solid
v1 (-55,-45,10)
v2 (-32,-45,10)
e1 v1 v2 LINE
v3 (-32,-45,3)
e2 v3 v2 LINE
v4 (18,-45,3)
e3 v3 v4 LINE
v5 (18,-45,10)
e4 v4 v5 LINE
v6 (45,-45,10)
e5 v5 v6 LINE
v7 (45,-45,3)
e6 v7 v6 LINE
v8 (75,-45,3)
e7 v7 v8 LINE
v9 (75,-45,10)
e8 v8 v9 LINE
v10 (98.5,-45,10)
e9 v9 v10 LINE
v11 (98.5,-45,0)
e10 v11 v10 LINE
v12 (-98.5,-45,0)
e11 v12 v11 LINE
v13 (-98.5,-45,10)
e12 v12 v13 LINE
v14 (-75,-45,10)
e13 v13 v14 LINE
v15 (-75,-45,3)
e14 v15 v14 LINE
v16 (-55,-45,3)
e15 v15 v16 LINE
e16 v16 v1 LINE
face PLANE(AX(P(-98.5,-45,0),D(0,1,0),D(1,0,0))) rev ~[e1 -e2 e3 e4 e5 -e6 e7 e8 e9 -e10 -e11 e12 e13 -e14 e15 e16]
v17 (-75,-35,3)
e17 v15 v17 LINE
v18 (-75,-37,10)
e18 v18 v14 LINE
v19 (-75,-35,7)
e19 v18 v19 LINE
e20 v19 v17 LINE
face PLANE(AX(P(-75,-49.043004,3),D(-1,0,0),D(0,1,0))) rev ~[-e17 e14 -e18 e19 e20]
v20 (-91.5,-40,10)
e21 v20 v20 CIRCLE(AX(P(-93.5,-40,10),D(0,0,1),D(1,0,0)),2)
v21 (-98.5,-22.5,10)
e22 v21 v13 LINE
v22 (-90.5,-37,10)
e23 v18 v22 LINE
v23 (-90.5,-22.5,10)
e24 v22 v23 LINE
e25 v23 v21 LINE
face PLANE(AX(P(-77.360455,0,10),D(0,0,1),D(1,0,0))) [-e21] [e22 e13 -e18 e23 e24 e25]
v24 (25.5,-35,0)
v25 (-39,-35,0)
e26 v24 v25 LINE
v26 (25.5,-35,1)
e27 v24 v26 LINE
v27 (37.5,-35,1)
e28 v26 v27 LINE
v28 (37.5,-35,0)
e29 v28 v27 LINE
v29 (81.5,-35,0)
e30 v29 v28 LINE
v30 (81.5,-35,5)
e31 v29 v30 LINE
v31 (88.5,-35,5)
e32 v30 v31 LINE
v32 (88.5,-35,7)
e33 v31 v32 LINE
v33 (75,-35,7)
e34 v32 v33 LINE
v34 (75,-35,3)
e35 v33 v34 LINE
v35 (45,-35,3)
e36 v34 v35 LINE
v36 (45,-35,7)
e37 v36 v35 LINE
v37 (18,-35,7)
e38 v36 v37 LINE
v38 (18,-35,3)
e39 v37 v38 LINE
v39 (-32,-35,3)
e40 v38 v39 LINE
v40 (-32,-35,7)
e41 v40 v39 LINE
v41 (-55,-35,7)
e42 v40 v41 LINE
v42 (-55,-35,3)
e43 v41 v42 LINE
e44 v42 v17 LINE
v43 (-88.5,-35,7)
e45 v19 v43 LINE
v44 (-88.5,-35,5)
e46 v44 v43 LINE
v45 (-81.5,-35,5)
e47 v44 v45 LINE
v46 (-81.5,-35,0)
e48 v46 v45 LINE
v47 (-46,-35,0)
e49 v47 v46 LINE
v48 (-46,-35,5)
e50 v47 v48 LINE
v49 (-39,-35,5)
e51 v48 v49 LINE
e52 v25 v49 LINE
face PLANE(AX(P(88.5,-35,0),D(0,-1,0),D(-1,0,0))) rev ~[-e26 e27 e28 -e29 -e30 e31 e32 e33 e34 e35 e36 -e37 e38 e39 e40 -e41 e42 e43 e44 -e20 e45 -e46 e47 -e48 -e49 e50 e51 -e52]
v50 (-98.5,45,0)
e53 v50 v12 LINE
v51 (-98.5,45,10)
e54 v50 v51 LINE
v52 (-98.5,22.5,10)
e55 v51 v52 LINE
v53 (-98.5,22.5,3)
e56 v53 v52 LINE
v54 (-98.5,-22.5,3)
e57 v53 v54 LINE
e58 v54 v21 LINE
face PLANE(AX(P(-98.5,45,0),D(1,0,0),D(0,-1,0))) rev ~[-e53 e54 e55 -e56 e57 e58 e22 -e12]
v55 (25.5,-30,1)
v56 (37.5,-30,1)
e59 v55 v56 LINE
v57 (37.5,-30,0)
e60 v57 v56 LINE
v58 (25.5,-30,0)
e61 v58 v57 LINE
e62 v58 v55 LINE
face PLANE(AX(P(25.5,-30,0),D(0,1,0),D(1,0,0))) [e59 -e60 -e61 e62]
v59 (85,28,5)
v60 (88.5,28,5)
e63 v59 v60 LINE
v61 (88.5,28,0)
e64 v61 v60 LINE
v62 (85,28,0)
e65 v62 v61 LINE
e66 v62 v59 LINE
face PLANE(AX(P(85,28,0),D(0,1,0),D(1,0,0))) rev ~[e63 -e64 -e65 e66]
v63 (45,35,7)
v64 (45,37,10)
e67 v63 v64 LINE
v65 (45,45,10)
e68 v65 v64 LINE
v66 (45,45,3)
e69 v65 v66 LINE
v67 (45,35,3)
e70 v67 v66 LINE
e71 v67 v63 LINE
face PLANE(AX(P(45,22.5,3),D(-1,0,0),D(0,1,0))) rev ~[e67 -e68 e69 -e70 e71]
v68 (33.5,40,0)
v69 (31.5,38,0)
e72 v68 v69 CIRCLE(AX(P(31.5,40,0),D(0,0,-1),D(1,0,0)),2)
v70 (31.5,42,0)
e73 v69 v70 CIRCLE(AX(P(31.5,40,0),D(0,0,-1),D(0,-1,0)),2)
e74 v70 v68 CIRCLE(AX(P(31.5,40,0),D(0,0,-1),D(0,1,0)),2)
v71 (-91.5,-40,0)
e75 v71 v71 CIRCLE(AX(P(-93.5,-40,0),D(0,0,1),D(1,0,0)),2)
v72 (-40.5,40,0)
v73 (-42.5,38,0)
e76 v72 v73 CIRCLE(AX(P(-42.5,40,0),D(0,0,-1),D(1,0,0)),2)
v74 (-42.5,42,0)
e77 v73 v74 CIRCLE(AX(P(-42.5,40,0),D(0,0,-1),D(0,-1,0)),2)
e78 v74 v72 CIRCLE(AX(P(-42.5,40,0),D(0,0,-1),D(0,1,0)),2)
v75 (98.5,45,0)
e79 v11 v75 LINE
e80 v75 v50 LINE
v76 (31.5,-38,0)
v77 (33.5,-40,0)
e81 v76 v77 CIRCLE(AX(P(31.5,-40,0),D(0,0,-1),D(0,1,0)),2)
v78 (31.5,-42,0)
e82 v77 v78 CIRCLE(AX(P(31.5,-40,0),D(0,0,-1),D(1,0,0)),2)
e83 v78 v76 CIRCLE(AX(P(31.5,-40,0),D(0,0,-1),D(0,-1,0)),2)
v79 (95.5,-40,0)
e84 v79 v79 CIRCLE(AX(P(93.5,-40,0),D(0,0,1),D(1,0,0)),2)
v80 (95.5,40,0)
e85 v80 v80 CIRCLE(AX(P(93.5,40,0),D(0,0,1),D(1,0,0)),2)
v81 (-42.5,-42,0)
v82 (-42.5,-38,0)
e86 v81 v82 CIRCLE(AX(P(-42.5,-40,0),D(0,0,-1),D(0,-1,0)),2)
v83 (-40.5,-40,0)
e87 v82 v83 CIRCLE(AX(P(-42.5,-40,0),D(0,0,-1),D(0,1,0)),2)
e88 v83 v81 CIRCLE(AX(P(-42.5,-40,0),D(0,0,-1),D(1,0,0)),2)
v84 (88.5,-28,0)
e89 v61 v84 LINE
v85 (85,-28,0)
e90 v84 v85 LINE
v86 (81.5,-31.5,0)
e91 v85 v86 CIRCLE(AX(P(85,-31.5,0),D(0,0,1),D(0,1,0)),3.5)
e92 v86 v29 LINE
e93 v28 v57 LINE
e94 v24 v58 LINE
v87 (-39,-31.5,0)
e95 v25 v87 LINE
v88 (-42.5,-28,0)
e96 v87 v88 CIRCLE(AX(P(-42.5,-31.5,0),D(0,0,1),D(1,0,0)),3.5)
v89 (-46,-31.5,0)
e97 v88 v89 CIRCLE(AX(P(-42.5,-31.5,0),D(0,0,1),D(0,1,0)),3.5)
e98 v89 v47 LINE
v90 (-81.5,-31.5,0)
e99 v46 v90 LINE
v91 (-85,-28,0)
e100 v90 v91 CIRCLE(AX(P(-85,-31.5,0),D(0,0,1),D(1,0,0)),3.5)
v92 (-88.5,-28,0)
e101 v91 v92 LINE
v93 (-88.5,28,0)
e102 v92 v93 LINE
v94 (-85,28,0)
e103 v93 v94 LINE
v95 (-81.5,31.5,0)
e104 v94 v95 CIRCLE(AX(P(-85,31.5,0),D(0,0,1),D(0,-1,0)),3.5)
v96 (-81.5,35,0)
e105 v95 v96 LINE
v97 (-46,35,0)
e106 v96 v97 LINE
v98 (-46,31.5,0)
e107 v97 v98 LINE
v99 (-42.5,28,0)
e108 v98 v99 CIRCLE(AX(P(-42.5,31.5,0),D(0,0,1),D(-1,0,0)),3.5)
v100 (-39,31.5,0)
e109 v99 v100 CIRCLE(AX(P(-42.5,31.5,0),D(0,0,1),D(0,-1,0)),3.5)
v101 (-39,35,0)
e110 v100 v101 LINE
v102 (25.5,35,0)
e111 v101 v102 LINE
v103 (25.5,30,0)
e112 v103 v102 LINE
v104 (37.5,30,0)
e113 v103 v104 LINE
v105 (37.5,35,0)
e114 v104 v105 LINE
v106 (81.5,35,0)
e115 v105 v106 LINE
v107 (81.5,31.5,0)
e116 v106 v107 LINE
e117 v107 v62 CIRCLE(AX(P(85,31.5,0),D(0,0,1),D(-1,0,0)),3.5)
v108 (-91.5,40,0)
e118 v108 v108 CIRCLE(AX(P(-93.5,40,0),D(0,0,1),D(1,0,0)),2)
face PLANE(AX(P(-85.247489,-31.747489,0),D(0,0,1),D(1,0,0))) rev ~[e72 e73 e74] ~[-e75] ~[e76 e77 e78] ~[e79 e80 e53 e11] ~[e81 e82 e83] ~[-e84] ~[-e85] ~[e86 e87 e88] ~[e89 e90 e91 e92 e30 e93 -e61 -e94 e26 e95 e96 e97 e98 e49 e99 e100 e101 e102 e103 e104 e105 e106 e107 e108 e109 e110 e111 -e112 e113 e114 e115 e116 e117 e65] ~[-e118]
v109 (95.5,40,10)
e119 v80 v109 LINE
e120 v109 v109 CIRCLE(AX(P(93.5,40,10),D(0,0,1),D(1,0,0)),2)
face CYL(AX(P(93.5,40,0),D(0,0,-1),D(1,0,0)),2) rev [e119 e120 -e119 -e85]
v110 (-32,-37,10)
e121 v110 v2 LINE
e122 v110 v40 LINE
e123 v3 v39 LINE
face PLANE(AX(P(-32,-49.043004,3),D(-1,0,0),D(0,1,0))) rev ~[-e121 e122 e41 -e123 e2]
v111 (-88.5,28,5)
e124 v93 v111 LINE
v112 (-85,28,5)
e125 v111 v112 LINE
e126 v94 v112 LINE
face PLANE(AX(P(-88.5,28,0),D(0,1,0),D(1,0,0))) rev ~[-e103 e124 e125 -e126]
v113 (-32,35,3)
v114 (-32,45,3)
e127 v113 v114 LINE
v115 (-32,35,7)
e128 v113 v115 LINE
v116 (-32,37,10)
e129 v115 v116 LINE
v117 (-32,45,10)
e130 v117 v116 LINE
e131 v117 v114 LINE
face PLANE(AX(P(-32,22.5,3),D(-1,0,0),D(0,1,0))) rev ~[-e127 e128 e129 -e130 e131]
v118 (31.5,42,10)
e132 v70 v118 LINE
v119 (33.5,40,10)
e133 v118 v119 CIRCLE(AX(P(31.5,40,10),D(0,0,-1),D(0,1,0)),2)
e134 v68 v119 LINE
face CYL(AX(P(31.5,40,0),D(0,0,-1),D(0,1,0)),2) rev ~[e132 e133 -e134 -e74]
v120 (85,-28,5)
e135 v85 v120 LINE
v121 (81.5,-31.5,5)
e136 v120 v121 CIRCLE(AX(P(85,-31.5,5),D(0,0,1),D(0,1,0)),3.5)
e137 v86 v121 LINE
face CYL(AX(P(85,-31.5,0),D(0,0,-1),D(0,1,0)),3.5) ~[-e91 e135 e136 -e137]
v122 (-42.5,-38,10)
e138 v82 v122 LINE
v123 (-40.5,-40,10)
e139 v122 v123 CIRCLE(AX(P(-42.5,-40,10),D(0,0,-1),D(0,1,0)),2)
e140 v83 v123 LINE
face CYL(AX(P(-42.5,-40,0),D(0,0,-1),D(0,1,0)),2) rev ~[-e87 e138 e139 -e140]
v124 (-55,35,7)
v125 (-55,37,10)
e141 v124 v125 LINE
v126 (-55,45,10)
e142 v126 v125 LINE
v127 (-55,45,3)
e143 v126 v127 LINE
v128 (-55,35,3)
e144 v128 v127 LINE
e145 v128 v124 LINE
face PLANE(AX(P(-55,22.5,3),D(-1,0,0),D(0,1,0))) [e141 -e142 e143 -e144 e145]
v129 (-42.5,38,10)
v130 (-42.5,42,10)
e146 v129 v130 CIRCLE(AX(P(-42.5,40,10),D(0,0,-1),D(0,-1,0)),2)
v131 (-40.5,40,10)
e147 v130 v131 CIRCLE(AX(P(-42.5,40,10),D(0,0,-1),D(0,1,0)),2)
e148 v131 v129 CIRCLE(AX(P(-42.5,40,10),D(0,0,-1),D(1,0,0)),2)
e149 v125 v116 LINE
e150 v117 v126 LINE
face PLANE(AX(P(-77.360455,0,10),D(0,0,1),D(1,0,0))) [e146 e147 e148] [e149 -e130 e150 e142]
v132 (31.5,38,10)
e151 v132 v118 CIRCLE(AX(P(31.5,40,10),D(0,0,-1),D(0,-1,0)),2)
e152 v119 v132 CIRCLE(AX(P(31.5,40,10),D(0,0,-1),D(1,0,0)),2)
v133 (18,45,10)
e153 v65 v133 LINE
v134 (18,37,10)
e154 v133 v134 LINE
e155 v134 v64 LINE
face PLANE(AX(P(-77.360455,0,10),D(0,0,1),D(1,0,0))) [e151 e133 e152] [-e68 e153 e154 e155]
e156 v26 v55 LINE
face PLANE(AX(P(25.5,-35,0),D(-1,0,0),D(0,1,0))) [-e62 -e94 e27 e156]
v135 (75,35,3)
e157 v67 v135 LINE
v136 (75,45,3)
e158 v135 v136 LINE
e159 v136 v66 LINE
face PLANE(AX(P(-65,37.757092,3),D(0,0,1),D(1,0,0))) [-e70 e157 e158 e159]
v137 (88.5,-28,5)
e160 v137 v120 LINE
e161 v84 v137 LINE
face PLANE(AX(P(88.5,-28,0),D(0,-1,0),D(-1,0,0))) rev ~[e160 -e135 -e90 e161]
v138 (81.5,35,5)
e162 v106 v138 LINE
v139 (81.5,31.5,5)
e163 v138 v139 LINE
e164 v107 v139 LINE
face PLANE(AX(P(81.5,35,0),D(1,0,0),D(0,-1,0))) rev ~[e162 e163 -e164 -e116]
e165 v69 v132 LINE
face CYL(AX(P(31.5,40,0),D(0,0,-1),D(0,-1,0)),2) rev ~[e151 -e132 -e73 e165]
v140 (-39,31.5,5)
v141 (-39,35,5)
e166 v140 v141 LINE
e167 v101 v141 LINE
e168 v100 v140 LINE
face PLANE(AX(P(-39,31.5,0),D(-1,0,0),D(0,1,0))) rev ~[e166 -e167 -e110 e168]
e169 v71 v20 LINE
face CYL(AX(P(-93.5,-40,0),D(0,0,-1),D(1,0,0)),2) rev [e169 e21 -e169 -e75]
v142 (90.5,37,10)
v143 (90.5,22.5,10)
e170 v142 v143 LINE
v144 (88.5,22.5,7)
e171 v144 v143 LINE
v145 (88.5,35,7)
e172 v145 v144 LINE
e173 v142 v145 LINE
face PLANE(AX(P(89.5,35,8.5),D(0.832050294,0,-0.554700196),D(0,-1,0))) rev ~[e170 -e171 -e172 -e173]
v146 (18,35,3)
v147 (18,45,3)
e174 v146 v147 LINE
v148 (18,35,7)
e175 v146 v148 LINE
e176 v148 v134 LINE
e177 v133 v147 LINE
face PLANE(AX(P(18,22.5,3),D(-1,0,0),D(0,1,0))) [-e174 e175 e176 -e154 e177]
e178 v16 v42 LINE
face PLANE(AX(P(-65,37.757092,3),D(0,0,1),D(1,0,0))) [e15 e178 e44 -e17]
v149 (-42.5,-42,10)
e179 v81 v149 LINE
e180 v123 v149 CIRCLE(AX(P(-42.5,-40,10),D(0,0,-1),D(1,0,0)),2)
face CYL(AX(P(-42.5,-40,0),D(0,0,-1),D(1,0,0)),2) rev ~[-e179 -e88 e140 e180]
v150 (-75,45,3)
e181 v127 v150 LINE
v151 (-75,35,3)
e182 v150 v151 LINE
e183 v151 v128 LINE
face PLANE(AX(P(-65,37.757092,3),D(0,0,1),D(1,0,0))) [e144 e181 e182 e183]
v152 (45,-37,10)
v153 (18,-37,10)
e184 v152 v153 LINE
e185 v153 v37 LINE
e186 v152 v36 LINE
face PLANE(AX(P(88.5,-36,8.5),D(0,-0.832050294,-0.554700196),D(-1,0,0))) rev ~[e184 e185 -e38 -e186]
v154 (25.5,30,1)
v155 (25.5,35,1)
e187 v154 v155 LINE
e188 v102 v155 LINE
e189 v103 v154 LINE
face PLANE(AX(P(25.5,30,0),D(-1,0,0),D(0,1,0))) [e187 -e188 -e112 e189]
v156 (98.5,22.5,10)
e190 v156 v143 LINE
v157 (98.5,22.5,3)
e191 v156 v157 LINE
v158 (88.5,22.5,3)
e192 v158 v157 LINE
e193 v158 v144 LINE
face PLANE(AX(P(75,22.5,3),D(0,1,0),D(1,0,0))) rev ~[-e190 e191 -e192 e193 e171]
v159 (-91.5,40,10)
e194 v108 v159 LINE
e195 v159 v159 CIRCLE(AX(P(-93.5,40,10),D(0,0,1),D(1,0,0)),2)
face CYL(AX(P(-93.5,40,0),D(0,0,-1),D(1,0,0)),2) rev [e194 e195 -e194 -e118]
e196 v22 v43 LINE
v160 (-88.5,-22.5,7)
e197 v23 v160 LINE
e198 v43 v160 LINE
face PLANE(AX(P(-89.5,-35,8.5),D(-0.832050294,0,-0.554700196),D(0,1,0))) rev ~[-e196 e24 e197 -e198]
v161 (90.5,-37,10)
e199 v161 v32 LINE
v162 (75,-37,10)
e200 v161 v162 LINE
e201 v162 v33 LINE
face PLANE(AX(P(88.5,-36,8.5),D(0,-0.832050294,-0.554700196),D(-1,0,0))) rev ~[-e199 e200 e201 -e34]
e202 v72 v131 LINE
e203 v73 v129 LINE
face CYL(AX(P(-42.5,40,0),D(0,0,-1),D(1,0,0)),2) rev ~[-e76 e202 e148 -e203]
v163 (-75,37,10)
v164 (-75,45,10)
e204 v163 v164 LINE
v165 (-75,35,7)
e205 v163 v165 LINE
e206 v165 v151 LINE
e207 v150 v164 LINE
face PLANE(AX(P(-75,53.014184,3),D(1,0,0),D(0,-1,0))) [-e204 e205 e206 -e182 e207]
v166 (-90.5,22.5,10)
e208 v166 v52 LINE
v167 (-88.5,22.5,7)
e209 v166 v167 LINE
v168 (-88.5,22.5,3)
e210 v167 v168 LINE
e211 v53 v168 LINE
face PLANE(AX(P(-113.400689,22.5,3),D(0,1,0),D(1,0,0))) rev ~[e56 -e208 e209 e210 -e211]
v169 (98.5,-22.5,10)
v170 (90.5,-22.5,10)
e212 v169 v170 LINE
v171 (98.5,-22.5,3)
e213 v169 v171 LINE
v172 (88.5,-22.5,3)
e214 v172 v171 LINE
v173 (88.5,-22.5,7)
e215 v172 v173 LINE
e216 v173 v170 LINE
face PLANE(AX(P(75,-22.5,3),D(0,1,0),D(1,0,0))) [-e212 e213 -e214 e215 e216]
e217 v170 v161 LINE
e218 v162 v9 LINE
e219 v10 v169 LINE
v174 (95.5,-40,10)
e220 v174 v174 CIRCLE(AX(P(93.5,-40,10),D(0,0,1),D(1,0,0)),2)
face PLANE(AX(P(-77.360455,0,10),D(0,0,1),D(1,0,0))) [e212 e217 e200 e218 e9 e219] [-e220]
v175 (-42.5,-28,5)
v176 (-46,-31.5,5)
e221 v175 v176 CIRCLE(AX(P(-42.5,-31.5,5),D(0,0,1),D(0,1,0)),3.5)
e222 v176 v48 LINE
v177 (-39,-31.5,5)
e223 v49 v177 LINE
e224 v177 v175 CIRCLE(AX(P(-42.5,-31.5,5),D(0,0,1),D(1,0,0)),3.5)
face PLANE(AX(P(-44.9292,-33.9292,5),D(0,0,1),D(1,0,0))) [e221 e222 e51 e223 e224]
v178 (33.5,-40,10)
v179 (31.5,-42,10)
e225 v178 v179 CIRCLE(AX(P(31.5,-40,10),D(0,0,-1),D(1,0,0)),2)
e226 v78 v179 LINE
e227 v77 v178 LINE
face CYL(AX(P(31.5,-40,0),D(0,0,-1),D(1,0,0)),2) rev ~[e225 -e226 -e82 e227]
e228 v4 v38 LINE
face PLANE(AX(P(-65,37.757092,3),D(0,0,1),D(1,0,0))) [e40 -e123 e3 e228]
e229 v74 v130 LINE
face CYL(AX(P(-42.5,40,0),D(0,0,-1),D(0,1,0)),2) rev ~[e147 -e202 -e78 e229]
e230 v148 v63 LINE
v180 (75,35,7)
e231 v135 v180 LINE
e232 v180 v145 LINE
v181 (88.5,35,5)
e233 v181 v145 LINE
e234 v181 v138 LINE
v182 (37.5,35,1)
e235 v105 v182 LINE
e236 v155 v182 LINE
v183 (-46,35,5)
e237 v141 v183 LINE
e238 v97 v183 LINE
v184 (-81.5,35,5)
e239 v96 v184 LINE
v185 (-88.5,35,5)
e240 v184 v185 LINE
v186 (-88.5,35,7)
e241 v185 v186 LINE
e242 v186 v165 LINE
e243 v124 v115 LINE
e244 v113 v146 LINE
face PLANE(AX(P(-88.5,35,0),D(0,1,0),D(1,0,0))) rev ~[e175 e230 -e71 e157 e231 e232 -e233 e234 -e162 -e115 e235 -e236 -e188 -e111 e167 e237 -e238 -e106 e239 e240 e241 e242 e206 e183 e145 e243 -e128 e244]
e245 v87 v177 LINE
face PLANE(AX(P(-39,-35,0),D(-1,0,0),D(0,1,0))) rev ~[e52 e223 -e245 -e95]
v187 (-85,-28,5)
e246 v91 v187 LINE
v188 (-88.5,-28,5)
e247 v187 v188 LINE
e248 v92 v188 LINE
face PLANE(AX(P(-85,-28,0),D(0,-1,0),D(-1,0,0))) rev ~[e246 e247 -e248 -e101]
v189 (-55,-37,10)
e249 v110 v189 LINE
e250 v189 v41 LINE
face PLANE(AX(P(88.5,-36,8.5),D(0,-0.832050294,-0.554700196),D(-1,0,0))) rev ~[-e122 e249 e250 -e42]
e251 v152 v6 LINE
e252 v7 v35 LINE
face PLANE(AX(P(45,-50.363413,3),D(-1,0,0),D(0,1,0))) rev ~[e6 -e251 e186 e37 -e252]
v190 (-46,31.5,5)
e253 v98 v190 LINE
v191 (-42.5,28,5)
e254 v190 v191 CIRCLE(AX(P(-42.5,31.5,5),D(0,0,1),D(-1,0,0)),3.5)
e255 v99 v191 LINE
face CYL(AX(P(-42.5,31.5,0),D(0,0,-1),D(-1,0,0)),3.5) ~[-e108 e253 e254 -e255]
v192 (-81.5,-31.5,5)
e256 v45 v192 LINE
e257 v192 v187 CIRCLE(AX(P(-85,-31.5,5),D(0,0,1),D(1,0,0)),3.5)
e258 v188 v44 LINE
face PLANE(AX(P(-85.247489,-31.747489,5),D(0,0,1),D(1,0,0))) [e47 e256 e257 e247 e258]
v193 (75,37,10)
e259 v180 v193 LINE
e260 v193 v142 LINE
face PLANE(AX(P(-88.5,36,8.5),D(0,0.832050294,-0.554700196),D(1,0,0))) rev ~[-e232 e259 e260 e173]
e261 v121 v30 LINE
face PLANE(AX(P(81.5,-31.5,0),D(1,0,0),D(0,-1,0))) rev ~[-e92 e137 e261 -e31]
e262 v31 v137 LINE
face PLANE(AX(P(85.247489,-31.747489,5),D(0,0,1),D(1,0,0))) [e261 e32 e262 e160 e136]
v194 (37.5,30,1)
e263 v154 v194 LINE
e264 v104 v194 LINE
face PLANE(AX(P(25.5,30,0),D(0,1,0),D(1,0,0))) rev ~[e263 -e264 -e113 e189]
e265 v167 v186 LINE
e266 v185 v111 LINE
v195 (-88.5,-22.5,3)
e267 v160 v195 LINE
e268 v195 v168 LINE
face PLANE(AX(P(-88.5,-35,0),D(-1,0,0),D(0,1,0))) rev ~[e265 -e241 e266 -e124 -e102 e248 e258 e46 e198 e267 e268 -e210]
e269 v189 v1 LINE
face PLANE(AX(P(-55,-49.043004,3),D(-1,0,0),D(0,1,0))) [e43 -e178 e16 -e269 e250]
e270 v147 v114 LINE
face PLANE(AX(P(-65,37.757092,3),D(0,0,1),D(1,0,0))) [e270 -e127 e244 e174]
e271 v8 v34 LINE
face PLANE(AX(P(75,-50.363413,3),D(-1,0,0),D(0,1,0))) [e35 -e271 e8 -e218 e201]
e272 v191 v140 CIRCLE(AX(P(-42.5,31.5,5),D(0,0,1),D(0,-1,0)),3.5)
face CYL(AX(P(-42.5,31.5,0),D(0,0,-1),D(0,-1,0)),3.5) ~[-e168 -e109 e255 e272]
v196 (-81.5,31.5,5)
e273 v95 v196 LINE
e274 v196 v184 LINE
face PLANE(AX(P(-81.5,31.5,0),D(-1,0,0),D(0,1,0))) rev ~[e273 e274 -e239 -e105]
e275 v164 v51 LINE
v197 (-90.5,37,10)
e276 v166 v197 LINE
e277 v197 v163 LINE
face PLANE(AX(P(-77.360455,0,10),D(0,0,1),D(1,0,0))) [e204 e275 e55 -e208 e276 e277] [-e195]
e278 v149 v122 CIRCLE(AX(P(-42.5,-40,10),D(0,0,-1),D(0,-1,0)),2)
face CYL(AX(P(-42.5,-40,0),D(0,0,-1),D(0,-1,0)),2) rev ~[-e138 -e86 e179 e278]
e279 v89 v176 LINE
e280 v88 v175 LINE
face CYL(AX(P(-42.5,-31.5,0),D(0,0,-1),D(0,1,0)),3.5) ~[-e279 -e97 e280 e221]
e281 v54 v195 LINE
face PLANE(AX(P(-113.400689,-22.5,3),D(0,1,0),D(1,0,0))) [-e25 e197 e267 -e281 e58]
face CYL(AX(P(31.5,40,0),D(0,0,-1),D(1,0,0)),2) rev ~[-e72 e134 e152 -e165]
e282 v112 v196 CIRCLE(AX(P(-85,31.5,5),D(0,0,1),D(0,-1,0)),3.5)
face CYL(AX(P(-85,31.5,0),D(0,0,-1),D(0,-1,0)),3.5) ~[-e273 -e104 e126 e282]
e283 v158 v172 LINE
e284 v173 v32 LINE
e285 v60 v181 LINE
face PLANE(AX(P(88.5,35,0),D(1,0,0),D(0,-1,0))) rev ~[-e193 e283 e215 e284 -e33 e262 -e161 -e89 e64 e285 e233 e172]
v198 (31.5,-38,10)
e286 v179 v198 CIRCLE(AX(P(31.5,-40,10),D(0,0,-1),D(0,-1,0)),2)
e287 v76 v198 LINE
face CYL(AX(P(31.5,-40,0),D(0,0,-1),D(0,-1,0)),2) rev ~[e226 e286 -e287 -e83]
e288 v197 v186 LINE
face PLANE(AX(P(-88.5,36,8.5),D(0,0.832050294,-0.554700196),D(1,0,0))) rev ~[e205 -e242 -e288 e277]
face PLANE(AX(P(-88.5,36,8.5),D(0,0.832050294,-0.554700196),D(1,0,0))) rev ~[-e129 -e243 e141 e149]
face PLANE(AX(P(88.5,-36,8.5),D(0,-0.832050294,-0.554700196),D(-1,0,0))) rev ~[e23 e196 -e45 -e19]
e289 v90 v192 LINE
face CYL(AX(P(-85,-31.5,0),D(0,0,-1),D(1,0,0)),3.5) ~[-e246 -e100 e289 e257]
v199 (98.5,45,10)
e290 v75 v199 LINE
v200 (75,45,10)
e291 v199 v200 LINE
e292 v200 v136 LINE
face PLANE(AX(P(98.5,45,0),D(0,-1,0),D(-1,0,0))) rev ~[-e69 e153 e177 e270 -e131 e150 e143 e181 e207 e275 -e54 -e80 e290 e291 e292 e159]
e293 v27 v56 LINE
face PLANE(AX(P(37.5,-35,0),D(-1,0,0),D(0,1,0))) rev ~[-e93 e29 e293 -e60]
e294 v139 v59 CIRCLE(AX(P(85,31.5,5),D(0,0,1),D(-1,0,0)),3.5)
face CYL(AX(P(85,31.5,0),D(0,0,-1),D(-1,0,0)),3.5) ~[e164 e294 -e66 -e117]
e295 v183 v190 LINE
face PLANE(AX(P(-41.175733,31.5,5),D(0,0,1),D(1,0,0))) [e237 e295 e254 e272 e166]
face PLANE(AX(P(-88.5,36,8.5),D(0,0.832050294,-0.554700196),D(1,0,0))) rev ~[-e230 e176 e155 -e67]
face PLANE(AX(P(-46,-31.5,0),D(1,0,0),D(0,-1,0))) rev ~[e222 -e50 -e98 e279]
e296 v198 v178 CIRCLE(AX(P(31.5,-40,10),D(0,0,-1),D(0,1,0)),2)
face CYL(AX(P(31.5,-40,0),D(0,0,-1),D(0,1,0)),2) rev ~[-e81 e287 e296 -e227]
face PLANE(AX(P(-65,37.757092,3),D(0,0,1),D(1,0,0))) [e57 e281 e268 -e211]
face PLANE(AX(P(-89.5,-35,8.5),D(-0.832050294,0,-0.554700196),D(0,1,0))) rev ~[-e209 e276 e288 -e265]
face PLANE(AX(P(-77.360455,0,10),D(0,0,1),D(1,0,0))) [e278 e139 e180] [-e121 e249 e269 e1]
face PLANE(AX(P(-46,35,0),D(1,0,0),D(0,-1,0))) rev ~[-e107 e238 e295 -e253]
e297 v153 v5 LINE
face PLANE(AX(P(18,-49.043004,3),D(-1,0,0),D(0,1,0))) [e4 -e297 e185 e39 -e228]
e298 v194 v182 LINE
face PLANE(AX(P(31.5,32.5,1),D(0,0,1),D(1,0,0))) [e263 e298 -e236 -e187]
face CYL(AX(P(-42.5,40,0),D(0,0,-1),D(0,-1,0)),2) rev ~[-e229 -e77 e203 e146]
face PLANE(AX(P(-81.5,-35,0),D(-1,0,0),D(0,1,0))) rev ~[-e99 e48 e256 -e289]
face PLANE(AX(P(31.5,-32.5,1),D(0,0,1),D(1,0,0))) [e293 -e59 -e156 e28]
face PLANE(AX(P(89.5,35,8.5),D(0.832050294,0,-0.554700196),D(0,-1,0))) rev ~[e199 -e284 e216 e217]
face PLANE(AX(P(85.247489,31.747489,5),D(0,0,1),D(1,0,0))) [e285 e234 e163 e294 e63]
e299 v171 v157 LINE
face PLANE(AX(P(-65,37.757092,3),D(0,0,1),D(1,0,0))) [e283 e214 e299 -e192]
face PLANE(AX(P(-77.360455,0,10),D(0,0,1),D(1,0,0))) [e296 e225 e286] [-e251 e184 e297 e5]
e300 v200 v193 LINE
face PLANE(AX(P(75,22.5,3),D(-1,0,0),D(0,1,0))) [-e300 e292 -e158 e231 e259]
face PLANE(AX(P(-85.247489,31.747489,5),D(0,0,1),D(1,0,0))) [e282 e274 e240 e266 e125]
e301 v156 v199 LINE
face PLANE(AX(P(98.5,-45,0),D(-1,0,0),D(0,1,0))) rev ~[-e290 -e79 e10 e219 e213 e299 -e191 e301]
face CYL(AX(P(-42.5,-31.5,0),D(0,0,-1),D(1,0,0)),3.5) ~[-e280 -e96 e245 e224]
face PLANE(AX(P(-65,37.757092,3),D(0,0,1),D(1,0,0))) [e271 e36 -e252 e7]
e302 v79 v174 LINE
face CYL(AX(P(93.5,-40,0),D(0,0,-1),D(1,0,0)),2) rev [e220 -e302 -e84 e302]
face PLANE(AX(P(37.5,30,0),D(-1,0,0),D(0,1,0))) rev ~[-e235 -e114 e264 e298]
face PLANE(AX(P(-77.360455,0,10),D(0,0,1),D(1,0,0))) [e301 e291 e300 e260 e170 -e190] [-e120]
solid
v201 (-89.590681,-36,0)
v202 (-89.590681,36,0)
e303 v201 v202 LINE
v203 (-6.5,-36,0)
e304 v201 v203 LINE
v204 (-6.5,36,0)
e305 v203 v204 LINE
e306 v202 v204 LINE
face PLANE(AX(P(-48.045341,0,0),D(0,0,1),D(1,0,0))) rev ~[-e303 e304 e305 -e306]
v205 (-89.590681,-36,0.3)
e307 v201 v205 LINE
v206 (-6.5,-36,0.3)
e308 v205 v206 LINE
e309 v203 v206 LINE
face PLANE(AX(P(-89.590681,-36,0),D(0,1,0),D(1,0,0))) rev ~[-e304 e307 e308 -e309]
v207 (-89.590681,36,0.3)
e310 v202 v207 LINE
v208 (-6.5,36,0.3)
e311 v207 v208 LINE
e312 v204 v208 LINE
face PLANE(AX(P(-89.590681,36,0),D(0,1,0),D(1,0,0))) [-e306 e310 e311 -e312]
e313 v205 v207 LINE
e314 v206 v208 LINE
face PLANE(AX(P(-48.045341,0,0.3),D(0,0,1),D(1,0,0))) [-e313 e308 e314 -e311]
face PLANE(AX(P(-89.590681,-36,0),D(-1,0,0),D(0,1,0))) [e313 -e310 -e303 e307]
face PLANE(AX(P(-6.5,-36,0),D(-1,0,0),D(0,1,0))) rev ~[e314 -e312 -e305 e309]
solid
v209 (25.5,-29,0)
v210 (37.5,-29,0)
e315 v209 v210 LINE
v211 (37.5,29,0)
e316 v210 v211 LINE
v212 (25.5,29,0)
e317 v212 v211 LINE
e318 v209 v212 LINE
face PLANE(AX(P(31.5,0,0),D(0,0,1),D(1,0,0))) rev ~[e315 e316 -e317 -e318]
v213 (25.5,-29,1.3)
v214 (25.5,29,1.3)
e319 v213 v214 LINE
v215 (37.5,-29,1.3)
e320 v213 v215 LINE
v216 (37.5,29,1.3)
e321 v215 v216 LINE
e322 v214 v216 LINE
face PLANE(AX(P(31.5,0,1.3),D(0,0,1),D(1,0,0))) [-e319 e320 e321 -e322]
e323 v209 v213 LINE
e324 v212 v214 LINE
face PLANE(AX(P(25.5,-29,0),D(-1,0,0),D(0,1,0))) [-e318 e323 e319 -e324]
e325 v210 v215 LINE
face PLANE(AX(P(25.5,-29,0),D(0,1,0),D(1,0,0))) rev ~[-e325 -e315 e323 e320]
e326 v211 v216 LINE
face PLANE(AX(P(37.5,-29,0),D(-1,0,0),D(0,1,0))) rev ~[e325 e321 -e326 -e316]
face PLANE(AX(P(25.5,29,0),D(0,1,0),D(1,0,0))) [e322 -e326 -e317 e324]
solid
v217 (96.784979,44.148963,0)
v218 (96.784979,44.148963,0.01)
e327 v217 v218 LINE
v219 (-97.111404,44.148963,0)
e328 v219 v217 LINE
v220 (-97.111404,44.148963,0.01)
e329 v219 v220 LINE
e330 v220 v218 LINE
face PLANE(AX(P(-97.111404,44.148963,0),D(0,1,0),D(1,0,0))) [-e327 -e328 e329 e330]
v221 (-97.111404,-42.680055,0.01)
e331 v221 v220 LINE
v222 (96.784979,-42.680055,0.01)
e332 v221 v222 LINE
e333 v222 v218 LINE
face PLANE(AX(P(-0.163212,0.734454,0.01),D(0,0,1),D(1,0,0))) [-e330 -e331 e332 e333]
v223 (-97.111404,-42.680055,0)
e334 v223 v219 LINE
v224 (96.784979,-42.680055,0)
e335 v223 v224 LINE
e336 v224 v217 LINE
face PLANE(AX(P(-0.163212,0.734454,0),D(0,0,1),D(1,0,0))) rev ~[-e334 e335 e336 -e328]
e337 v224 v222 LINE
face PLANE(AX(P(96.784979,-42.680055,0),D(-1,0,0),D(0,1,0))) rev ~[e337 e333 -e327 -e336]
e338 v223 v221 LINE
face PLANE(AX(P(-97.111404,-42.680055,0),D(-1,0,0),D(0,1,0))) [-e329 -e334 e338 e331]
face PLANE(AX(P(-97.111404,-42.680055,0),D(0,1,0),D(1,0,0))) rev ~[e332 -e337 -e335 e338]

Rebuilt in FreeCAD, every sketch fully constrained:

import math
import FreeCAD as App
import Part
import Sketcher

V = App.Vector


def edges_at(feature, points):
    """Names of the edges that pass closest to the given points."""
    edges = feature.Shape.Edges
    near = lambda p: min(range(len(edges)), key=lambda i: edges[i].distToShape(Part.Vertex(*p))[0])
    return sorted({f"Edge{near(p) + 1}" for p in points})


def add_polygon(sketch, points):
    """Adds a closed chain of lines whose ends are joined by coincident constraints."""
    first, n = sketch.GeometryCount, len(points)
    for a, b in zip(points, points[1:] + points[:1]):
        sketch.addGeometry(Part.LineSegment(App.Vector(*a, 0), App.Vector(*b, 0)), False)
    for i in range(n):
        sketch.addConstraint(Sketcher.Constraint("Coincident", first + i, 2, first + (i + 1) % n, 1))

doc = App.newDocument("Part")
params = doc.addObject("Spreadsheet::Sheet", "Params")
for row, (alias, value) in enumerate([
    ("sketch1_diameter", "4 mm"),
    ("sketch1_width", "197 mm"),
    ("sketch1_width2", "177 mm"),
    ("sketch1_height", "90 mm"),
    ("sketch1_height2", "70 mm"),
    ("pad1_length", "10 mm"),
    ("sketch2_radius", "3.5 mm"),
    ("pad2_length", "5 mm"),
    ("chamfer_size", "2 mm"),
    ("chamfer_size2", "3 mm"),
    ("sketch3_width", "20 mm"),
    ("sketch3_width2", "23 mm"),
    ("sketch3_width3", "50 mm"),
    ("sketch3_width4", "27 mm"),
    ("sketch3_width5", "30 mm"),
    ("pocket1_length", "22 mm"),
    ("sketch4_width", "12 mm"),
    ("sketch4_height", "5 mm"),
    ("pad3_length", "1 mm"),
    ("sketch5_width", "12 mm"),
    ("sketch5_height", "58 mm"),
    ("pad4_length", "1.3 mm"),
    ("sketch6_height", "72 mm"),
    ("pad5_length", "0.3 mm"),
    ("pad6_length", "0.01 mm"),
], start=1):
    params.set(f"A{row}", alias)
    params.set(f"B{row}", "=" + value)
    params.setAlias(f"B{row}", alias)

body = doc.addObject("PartDesign::Body", "Body")

# Sketch on XY plane
sketch1 = body.newObject("Sketcher::SketchObject", "Sketch")
sketch1.AttachmentSupport = (doc.getObject("XY_Plane"), [""])
sketch1.MapMode = "FlatFace"
add_polygon(sketch1, [(98.5, -45), (98.5, 45), (-98.5, 45), (-98.5, -45)])  # lines 0-3
add_polygon(sketch1, [(-88.5, -35), (-88.5, 35), (88.5, 35), (88.5, -35)])  # lines 4-7
sketch1.addGeometry(Part.ArcOfCircle(Part.Circle(V(31.5, -40, 0), V(0, 0, 1), 2), math.radians(0), math.radians(90)), False)  # 8
sketch1.addGeometry(Part.ArcOfCircle(Part.Circle(V(31.5, -40, 0), V(0, 0, 1), 2), math.radians(-90), math.radians(0)), False)  # 9
sketch1.addGeometry(Part.ArcOfCircle(Part.Circle(V(31.5, -40, 0), V(0, 0, 1), 2), math.radians(90), math.radians(270)), False)  # 10
sketch1.addGeometry(Part.ArcOfCircle(Part.Circle(V(-42.5, -40, 0), V(0, 0, 1), 2), math.radians(90), math.radians(270)), False)  # 11
sketch1.addGeometry(Part.ArcOfCircle(Part.Circle(V(-42.5, -40, 0), V(0, 0, 1), 2), math.radians(0), math.radians(90)), False)  # 12
sketch1.addGeometry(Part.ArcOfCircle(Part.Circle(V(-42.5, -40, 0), V(0, 0, 1), 2), math.radians(-90), math.radians(0)), False)  # 13
sketch1.addGeometry(Part.ArcOfCircle(Part.Circle(V(-42.5, 40, 0), V(0, 0, 1), 2), math.radians(90), math.radians(270)), False)  # 14
sketch1.addGeometry(Part.ArcOfCircle(Part.Circle(V(-42.5, 40, 0), V(0, 0, 1), 2), math.radians(0), math.radians(90)), False)  # 15
sketch1.addGeometry(Part.ArcOfCircle(Part.Circle(V(-42.5, 40, 0), V(0, 0, 1), 2), math.radians(-90), math.radians(0)), False)  # 16
sketch1.addGeometry(Part.Circle(V(-93.5, -40, 0), V(0, 0, 1), 2), False)  # 17
sketch1.addGeometry(Part.Circle(V(-93.5, 40, 0), V(0, 0, 1), 2), False)  # 18
sketch1.addGeometry(Part.ArcOfCircle(Part.Circle(V(31.5, 40, 0), V(0, 0, 1), 2), math.radians(90), math.radians(270)), False)  # 19
sketch1.addGeometry(Part.ArcOfCircle(Part.Circle(V(31.5, 40, 0), V(0, 0, 1), 2), math.radians(0), math.radians(90)), False)  # 20
sketch1.addGeometry(Part.ArcOfCircle(Part.Circle(V(31.5, 40, 0), V(0, 0, 1), 2), math.radians(-90), math.radians(0)), False)  # 21
sketch1.addGeometry(Part.Circle(V(93.5, 40, 0), V(0, 0, 1), 2), False)  # 22
sketch1.addGeometry(Part.Circle(V(93.5, -40, 0), V(0, 0, 1), 2), False)  # 23
sketch1.addConstraint(Sketcher.Constraint("Tangent", 8, 1, 9, 2))
sketch1.addConstraint(Sketcher.Constraint("Tangent", 9, 1, 10, 2))
sketch1.addConstraint(Sketcher.Constraint("Tangent", 10, 1, 8, 2))
sketch1.addConstraint(Sketcher.Constraint("Tangent", 11, 1, 12, 2))
sketch1.addConstraint(Sketcher.Constraint("Tangent", 12, 1, 13, 2))
sketch1.addConstraint(Sketcher.Constraint("Tangent", 13, 1, 11, 2))
sketch1.addConstraint(Sketcher.Constraint("Tangent", 14, 1, 15, 2))
sketch1.addConstraint(Sketcher.Constraint("Tangent", 15, 1, 16, 2))
sketch1.addConstraint(Sketcher.Constraint("Tangent", 16, 1, 14, 2))
sketch1.addConstraint(Sketcher.Constraint("Tangent", 19, 1, 20, 2))
sketch1.addConstraint(Sketcher.Constraint("Tangent", 20, 1, 21, 2))
sketch1.addConstraint(Sketcher.Constraint("Tangent", 21, 1, 19, 2))
sketch1.addConstraint(Sketcher.Constraint("Vertical", 0))
sketch1.addConstraint(Sketcher.Constraint("Horizontal", 1))
sketch1.addConstraint(Sketcher.Constraint("Vertical", 2))
sketch1.addConstraint(Sketcher.Constraint("Horizontal", 3))
sketch1.addConstraint(Sketcher.Constraint("Vertical", 4))
sketch1.addConstraint(Sketcher.Constraint("Horizontal", 5))
sketch1.addConstraint(Sketcher.Constraint("Vertical", 6))
sketch1.addConstraint(Sketcher.Constraint("Horizontal", 7))
sketch1.addConstraint(Sketcher.Constraint("Equal", 10, 11))
sketch1.addConstraint(Sketcher.Constraint("Equal", 13, 14))
sketch1.addConstraint(Sketcher.Constraint("Equal", 16, 17))
sketch1.addConstraint(Sketcher.Constraint("Equal", 17, 18))
sketch1.addConstraint(Sketcher.Constraint("Equal", 18, 19))
sketch1.addConstraint(Sketcher.Constraint("Equal", 21, 22))
sketch1.addConstraint(Sketcher.Constraint("Equal", 22, 23))
sketch1.addConstraint(Sketcher.Constraint("Symmetric", 17, 3, 22, 3, -1, 1))
sketch1.addConstraint(Sketcher.Constraint("Symmetric", 18, 3, 23, 3, -1, 1))
sketch1.addConstraint(Sketcher.Constraint("Symmetric", 0, 2, 2, 2, -1, 1))
sketch1.addConstraint(Sketcher.Constraint("Symmetric", 4, 2, 6, 2, -1, 1))
sketch1.addConstraint(Sketcher.Constraint("Symmetric", 18, 3, 22, 3, -2))
sketch1.addConstraint(Sketcher.Constraint("Symmetric", 11, 3, 14, 3, -1))
sketch1.addConstraint(Sketcher.Constraint("Symmetric", 8, 3, 19, 3, -1))
sketch1.addConstraint(Sketcher.Constraint("Horizontal", 10, 3, 11, 3))
sketch1.addConstraint(Sketcher.Constraint("Horizontal", 13, 3, 17, 3))
sketch1.addConstraint(Sketcher.Constraint("Horizontal", 23, 3, 8, 1))
sketch1.addConstraint(Sketcher.Constraint("Horizontal", 8, 1, 12, 1))
sketch1.addConstraint(Sketcher.Constraint("Horizontal", 22, 3, 15, 1))
sketch1.addConstraint(Sketcher.Constraint("Horizontal", 15, 1, 20, 1))
sketch1.addConstraint(Sketcher.Constraint("Vertical", 21, 3, 9, 1))
sketch1.addConstraint(Sketcher.Constraint("Vertical", 9, 1, 10, 1))
sketch1.addConstraint(Sketcher.Constraint("Vertical", 16, 3, 11, 1))
sketch1.addConstraint(Sketcher.Constraint("Vertical", 11, 1, 13, 1))
sketch1.addConstraint(Sketcher.Constraint("Vertical", 13, 1, 14, 1))
sketch1.addConstraint(Sketcher.Constraint("Vertical", 14, 1, 16, 1))
sketch1.addConstraint(Sketcher.Constraint("Vertical", 10, 1, 19, 1))
sketch1.addConstraint(Sketcher.Constraint("Vertical", 19, 1, 21, 1))
sketch1.addConstraint(Sketcher.Constraint("Diameter", 17, 4.0))
sketch1.addConstraint(Sketcher.Constraint("DistanceX", 1, 2, 1, 1, 197.0))
sketch1.addConstraint(Sketcher.Constraint("DistanceX", 5, 1, 5, 2, 177.0))
sketch1.addConstraint(Sketcher.Constraint("DistanceY", 0, 1, 0, 2, 90.0))
sketch1.addConstraint(Sketcher.Constraint("DistanceY", 4, 1, 4, 2, 70.0))
sketch1.addConstraint(Sketcher.Constraint("DistanceY", 8, 3, -1, 1, 40.0))
sketch1.addConstraint(Sketcher.Constraint("DistanceX", 11, 3, 8, 3, 74.0))
sketch1.addConstraint(Sketcher.Constraint("DistanceX", 17, 3, 11, 3, 51.0))
sketch1.addConstraint(Sketcher.Constraint("DistanceX", 19, 3, 22, 3, 62.0))
sketch1.setExpression("Constraints[56]", "Params.sketch1_diameter")
sketch1.setExpression("Constraints[57]", "Params.sketch1_width")
sketch1.setExpression("Constraints[58]", "Params.sketch1_width2")
sketch1.setExpression("Constraints[59]", "Params.sketch1_height")
sketch1.setExpression("Constraints[60]", "Params.sketch1_height2")
pad1 = body.newObject("PartDesign::Pad", "Pad")
pad1.Profile = sketch1
pad1.setExpression("Length", "Params.pad1_length")

# Sketch on XY plane
sketch2 = body.newObject("Sketcher::SketchObject", "Sketch001")
sketch2.AttachmentSupport = (doc.getObject("XY_Plane"), [""])
sketch2.MapMode = "FlatFace"
sketch2.addGeometry(Part.LineSegment(V(-88.5, -28, 0), V(-88.5, -35, 0)), False)
sketch2.addGeometry(Part.LineSegment(V(-88.5, -35, 0), V(-81.5, -35, 0)), False)
sketch2.addGeometry(Part.LineSegment(V(-81.5, -35, 0), V(-81.5, -31.5, 0)), False)
sketch2.addGeometry(Part.ArcOfCircle(Part.Circle(V(-85, -31.5, 0), V(0, 0, 1), 3.5), math.radians(0), math.radians(90)), False)
sketch2.addGeometry(Part.LineSegment(V(-85, -28, 0), V(-88.5, -28, 0)), False)
sketch2.addGeometry(Part.LineSegment(V(-46, -31.5, 0), V(-46, -35, 0)), False)
sketch2.addGeometry(Part.LineSegment(V(-46, -35, 0), V(-39, -35, 0)), False)
sketch2.addGeometry(Part.LineSegment(V(-39, -35, 0), V(-39, -31.5, 0)), False)
sketch2.addGeometry(Part.ArcOfCircle(Part.Circle(V(-42.5, -31.5, 0), V(0, 0, 1), 3.5), math.radians(0), math.radians(90)), False)
sketch2.addGeometry(Part.ArcOfCircle(Part.Circle(V(-42.5, -31.5, 0), V(0, 0, 1), 3.5), math.radians(90), math.radians(180)), False)
sketch2.addGeometry(Part.LineSegment(V(-88.5, 35, 0), V(-88.5, 28, 0)), False)
sketch2.addGeometry(Part.LineSegment(V(-88.5, 28, 0), V(-85, 28, 0)), False)
sketch2.addGeometry(Part.ArcOfCircle(Part.Circle(V(-85, 31.5, 0), V(0, 0, 1), 3.5), math.radians(-90), math.radians(0)), False)
sketch2.addGeometry(Part.LineSegment(V(-81.5, 31.5, 0), V(-81.5, 35, 0)), False)
sketch2.addGeometry(Part.LineSegment(V(-81.5, 35, 0), V(-88.5, 35, 0)), False)
sketch2.addGeometry(Part.ArcOfCircle(Part.Circle(V(-42.5, 31.5, 0), V(0, 0, 1), 3.5), math.radians(-90), math.radians(0)), False)
sketch2.addGeometry(Part.LineSegment(V(-39, 31.5, 0), V(-39, 35, 0)), False)
sketch2.addGeometry(Part.LineSegment(V(-39, 35, 0), V(-46, 35, 0)), False)
sketch2.addGeometry(Part.LineSegment(V(-46, 35, 0), V(-46, 31.5, 0)), False)
sketch2.addGeometry(Part.ArcOfCircle(Part.Circle(V(-42.5, 31.5, 0), V(0, 0, 1), 3.5), math.radians(180), math.radians(270)), False)
sketch2.addGeometry(Part.LineSegment(V(81.5, -31.5, 0), V(81.5, -35, 0)), False)
sketch2.addGeometry(Part.LineSegment(V(81.5, -35, 0), V(88.5, -35, 0)), False)
sketch2.addGeometry(Part.LineSegment(V(88.5, -35, 0), V(88.5, -28, 0)), False)
sketch2.addGeometry(Part.LineSegment(V(88.5, -28, 0), V(85, -28, 0)), False)
sketch2.addGeometry(Part.ArcOfCircle(Part.Circle(V(85, -31.5, 0), V(0, 0, 1), 3.5), math.radians(90), math.radians(180)), False)
sketch2.addGeometry(Part.LineSegment(V(88.5, 35, 0), V(81.5, 35, 0)), False)
sketch2.addGeometry(Part.LineSegment(V(81.5, 35, 0), V(81.5, 31.5, 0)), False)
sketch2.addGeometry(Part.ArcOfCircle(Part.Circle(V(85, 31.5, 0), V(0, 0, 1), 3.5), math.radians(180), math.radians(270)), False)
sketch2.addGeometry(Part.LineSegment(V(85, 28, 0), V(88.5, 28, 0)), False)
sketch2.addGeometry(Part.LineSegment(V(88.5, 28, 0), V(88.5, 35, 0)), False)
sketch2.addConstraint(Sketcher.Constraint("Coincident", 0, 2, 1, 1))
sketch2.addConstraint(Sketcher.Constraint("Coincident", 1, 2, 2, 1))
sketch2.addConstraint(Sketcher.Constraint("Tangent", 2, 2, 3, 1))
sketch2.addConstraint(Sketcher.Constraint("Tangent", 3, 2, 4, 1))
sketch2.addConstraint(Sketcher.Constraint("Coincident", 4, 2, 0, 1))
sketch2.addConstraint(Sketcher.Constraint("Coincident", 5, 2, 6, 1))
sketch2.addConstraint(Sketcher.Constraint("Coincident", 6, 2, 7, 1))
sketch2.addConstraint(Sketcher.Constraint("Tangent", 7, 2, 8, 1))
sketch2.addConstraint(Sketcher.Constraint("Tangent", 8, 2, 9, 1))
sketch2.addConstraint(Sketcher.Constraint("Tangent", 9, 2, 5, 1))
sketch2.addConstraint(Sketcher.Constraint("Coincident", 10, 2, 11, 1))
sketch2.addConstraint(Sketcher.Constraint("Tangent", 11, 2, 12, 1))
sketch2.addConstraint(Sketcher.Constraint("Tangent", 12, 2, 13, 1))
sketch2.addConstraint(Sketcher.Constraint("Coincident", 13, 2, 14, 1))
sketch2.addConstraint(Sketcher.Constraint("Coincident", 14, 2, 10, 1))
sketch2.addConstraint(Sketcher.Constraint("Tangent", 15, 2, 16, 1))
sketch2.addConstraint(Sketcher.Constraint("Coincident", 16, 2, 17, 1))
sketch2.addConstraint(Sketcher.Constraint("Coincident", 17, 2, 18, 1))
sketch2.addConstraint(Sketcher.Constraint("Tangent", 18, 2, 19, 1))
sketch2.addConstraint(Sketcher.Constraint("Tangent", 19, 2, 15, 1))
sketch2.addConstraint(Sketcher.Constraint("Coincident", 20, 2, 21, 1))
sketch2.addConstraint(Sketcher.Constraint("Coincident", 21, 2, 22, 1))
sketch2.addConstraint(Sketcher.Constraint("Coincident", 22, 2, 23, 1))
sketch2.addConstraint(Sketcher.Constraint("Tangent", 23, 2, 24, 1))
sketch2.addConstraint(Sketcher.Constraint("Tangent", 24, 2, 20, 1))
sketch2.addConstraint(Sketcher.Constraint("Coincident", 25, 2, 26, 1))
sketch2.addConstraint(Sketcher.Constraint("Tangent", 26, 2, 27, 1))
sketch2.addConstraint(Sketcher.Constraint("Tangent", 27, 2, 28, 1))
sketch2.addConstraint(Sketcher.Constraint("Coincident", 28, 2, 29, 1))
sketch2.addConstraint(Sketcher.Constraint("Coincident", 29, 2, 25, 1))
sketch2.addConstraint(Sketcher.Constraint("Vertical", 0))
sketch2.addConstraint(Sketcher.Constraint("Horizontal", 1))
sketch2.addConstraint(Sketcher.Constraint("Vertical", 2))
sketch2.addConstraint(Sketcher.Constraint("Horizontal", 4))
sketch2.addConstraint(Sketcher.Constraint("Vertical", 5))
sketch2.addConstraint(Sketcher.Constraint("Horizontal", 6))
sketch2.addConstraint(Sketcher.Constraint("Vertical", 7))
sketch2.addConstraint(Sketcher.Constraint("Vertical", 10))
sketch2.addConstraint(Sketcher.Constraint("Horizontal", 11))
sketch2.addConstraint(Sketcher.Constraint("Vertical", 13))
sketch2.addConstraint(Sketcher.Constraint("Horizontal", 14))
sketch2.addConstraint(Sketcher.Constraint("Vertical", 16))
sketch2.addConstraint(Sketcher.Constraint("Horizontal", 17))
sketch2.addConstraint(Sketcher.Constraint("Vertical", 18))
sketch2.addConstraint(Sketcher.Constraint("Vertical", 20))
sketch2.addConstraint(Sketcher.Constraint("Horizontal", 21))
sketch2.addConstraint(Sketcher.Constraint("Vertical", 22))
sketch2.addConstraint(Sketcher.Constraint("Horizontal", 23))
sketch2.addConstraint(Sketcher.Constraint("Horizontal", 25))
sketch2.addConstraint(Sketcher.Constraint("Vertical", 26))
sketch2.addConstraint(Sketcher.Constraint("Horizontal", 28))
sketch2.addConstraint(Sketcher.Constraint("Vertical", 29))
sketch2.addConstraint(Sketcher.Constraint("Equal", 3, 8))
sketch2.addConstraint(Sketcher.Constraint("Equal", 8, 9))
sketch2.addConstraint(Sketcher.Constraint("Equal", 9, 12))
sketch2.addConstraint(Sketcher.Constraint("Equal", 12, 15))
sketch2.addConstraint(Sketcher.Constraint("Equal", 15, 19))
sketch2.addConstraint(Sketcher.Constraint("Equal", 19, 24))
sketch2.addConstraint(Sketcher.Constraint("Equal", 24, 27))
sketch2.addConstraint(Sketcher.Constraint("Symmetric", 12, 3, 24, 3, -1, 1))
sketch2.addConstraint(Sketcher.Constraint("Symmetric", 3, 3, 27, 3, -1, 1))
sketch2.addConstraint(Sketcher.Constraint("Symmetric", 14, 2, 21, 2, -1, 1))
sketch2.addConstraint(Sketcher.Constraint("Symmetric", 0, 2, 29, 2, -1, 1))
sketch2.addConstraint(Sketcher.Constraint("Symmetric", 3, 3, 24, 3, -2))
sketch2.addConstraint(Sketcher.Constraint("Symmetric", 0, 2, 21, 2, -2))
sketch2.addConstraint(Sketcher.Constraint("Symmetric", 8, 3, 15, 3, -1))
sketch2.addConstraint(Sketcher.Constraint("Horizontal", 3, 3, 8, 3))
sketch2.addConstraint(Sketcher.Constraint("Horizontal", 1, 2, 5, 2))
sketch2.addConstraint(Sketcher.Constraint("Horizontal", 14, 2, 16, 2))
sketch2.addConstraint(Sketcher.Constraint("Vertical", 19, 3, 8, 2))
sketch2.addConstraint(Sketcher.Constraint("Vertical", 8, 2, 19, 2))
sketch2.addConstraint(Sketcher.Constraint("Equal", 1, 6))
sketch2.addConstraint(Sketcher.Constraint("Equal", 25, 0))
sketch2.addConstraint(Sketcher.Constraint("Radius", 3, 3.5))
sketch2.addConstraint(Sketcher.Constraint("DistanceX", 3, 3, -1, 1, 85.0))
sketch2.addConstraint(Sketcher.Constraint("DistanceY", 0, 2, -1, 1, 35.0))
sketch2.addConstraint(Sketcher.Constraint("DistanceX", 5, 2, -1, 1, 46.0))
sketch2.setExpression("Constraints[73]", "Params.sketch2_radius")
pad2 = body.newObject("PartDesign::Pad", "Pad001")
pad2.Profile = sketch2
pad2.setExpression("Length", "Params.pad2_length")
doc.recompute()

chamfer = body.newObject("PartDesign::Chamfer", "Chamfer")
chamfer.Base = (pad2, edges_at(pad2, [
    (-88.5, 0, 10),
    (0, -35, 10),
    (88.5, 0, 10),
    (0, 35, 10),
]))
chamfer.ChamferType = "Two distances"
chamfer.setExpression("Size", "Params.chamfer_size")
chamfer.setExpression("Size2", "Params.chamfer_size2")

# Sketch on XY plane
sketch3 = body.newObject("Sketcher::SketchObject", "Sketch002")
sketch3.AttachmentSupport = (doc.getObject("XY_Plane"), [""])
sketch3.MapMode = "FlatFace"
sketch3.AttachmentOffset = App.Placement(V(0, 0, 3), App.Rotation())
add_polygon(sketch3, [(-75, 53), (-75, 22), (-113, 22), (-113, -22), (-75, -22), (-75, -49), (-55, -49), (-55, -22), (-32, -22), (-32, -49), (18, -49), (18, -22), (45, -22), (45, -50), (75, -50), (75, -22), (107, -22), (107, 22), (75, 22), (75, 53), (45, 53), (45, 22), (18, 22), (18, 53), (-32, 53), (-32, 22), (-55, 22), (-55, 53)])  # lines 0-27
sketch3.addConstraint(Sketcher.Constraint("Vertical", 0))
sketch3.addConstraint(Sketcher.Constraint("Horizontal", 1))
sketch3.addConstraint(Sketcher.Constraint("Vertical", 2))
sketch3.addConstraint(Sketcher.Constraint("Horizontal", 3))
sketch3.addConstraint(Sketcher.Constraint("Vertical", 4))
sketch3.addConstraint(Sketcher.Constraint("Horizontal", 5))
sketch3.addConstraint(Sketcher.Constraint("Vertical", 6))
sketch3.addConstraint(Sketcher.Constraint("Horizontal", 7))
sketch3.addConstraint(Sketcher.Constraint("Vertical", 8))
sketch3.addConstraint(Sketcher.Constraint("Horizontal", 9))
sketch3.addConstraint(Sketcher.Constraint("Vertical", 10))
sketch3.addConstraint(Sketcher.Constraint("Horizontal", 11))
sketch3.addConstraint(Sketcher.Constraint("Vertical", 12))
sketch3.addConstraint(Sketcher.Constraint("Horizontal", 13))
sketch3.addConstraint(Sketcher.Constraint("Vertical", 14))
sketch3.addConstraint(Sketcher.Constraint("Horizontal", 15))
sketch3.addConstraint(Sketcher.Constraint("Vertical", 16))
sketch3.addConstraint(Sketcher.Constraint("Horizontal", 17))
sketch3.addConstraint(Sketcher.Constraint("Vertical", 18))
sketch3.addConstraint(Sketcher.Constraint("Horizontal", 19))
sketch3.addConstraint(Sketcher.Constraint("Vertical", 20))
sketch3.addConstraint(Sketcher.Constraint("Horizontal", 21))
sketch3.addConstraint(Sketcher.Constraint("Vertical", 22))
sketch3.addConstraint(Sketcher.Constraint("Horizontal", 23))
sketch3.addConstraint(Sketcher.Constraint("Vertical", 24))
sketch3.addConstraint(Sketcher.Constraint("Horizontal", 25))
sketch3.addConstraint(Sketcher.Constraint("Vertical", 26))
sketch3.addConstraint(Sketcher.Constraint("Horizontal", 27))
sketch3.addConstraint(Sketcher.Constraint("Symmetric", 0, 2, 14, 2, -1, 1))
sketch3.addConstraint(Sketcher.Constraint("Symmetric", 3, 2, 17, 2, -1, 1))
sketch3.addConstraint(Sketcher.Constraint("Symmetric", 3, 2, 14, 2, -2))
sketch3.addConstraint(Sketcher.Constraint("Symmetric", 11, 2, 20, 2, -1))
sketch3.addConstraint(Sketcher.Constraint("Symmetric", 7, 2, 24, 2, -1))
sketch3.addConstraint(Sketcher.Constraint("Horizontal", 3, 2, 6, 2))
sketch3.addConstraint(Sketcher.Constraint("Horizontal", 5, 2, 8, 2))
sketch3.addConstraint(Sketcher.Constraint("Horizontal", 7, 2, 10, 2))
sketch3.addConstraint(Sketcher.Constraint("Vertical", 10, 2, 21, 2))
sketch3.addConstraint(Sketcher.Constraint("Vertical", 6, 2, 25, 2))
sketch3.addConstraint(Sketcher.Constraint("DistanceX", 5, 1, 5, 2, 20.0))
sketch3.addConstraint(Sketcher.Constraint("DistanceX", 7, 1, 7, 2, 23.0))
sketch3.addConstraint(Sketcher.Constraint("DistanceX", 9, 1, 9, 2, 50.0))
sketch3.addConstraint(Sketcher.Constraint("DistanceX", 11, 1, 11, 2, 27.0))
sketch3.addConstraint(Sketcher.Constraint("DistanceX", 13, 1, 13, 2, 30.0))
sketch3.addConstraint(Sketcher.Constraint("DistanceY", 2, 2, 2, 1, 45.0))
sketch3.addConstraint(Sketcher.Constraint("DistanceX", 1, 2, 1, 1, 38.400689))
sketch3.addConstraint(Sketcher.Constraint("DistanceX", 15, 1, 15, 2, 32.058555))
sketch3.addConstraint(Sketcher.Constraint("DistanceY", 0, 2, 0, 1, 30.514184))
sketch3.addConstraint(Sketcher.Constraint("DistanceY", 4, 2, 4, 1, 26.543004))
sketch3.addConstraint(Sketcher.Constraint("DistanceY", 12, 2, 12, 1, 27.863413))
sketch3.addConstraint(Sketcher.Constraint("DistanceY", 18, 1, 18, 2, 30.586375))
sketch3.addConstraint(Sketcher.Constraint("DistanceY", 22, 1, 22, 2, 30.912663))
sketch3.setExpression("Constraints[66]", "Params.sketch3_width")
sketch3.setExpression("Constraints[67]", "Params.sketch3_width2")
sketch3.setExpression("Constraints[68]", "Params.sketch3_width3")
sketch3.setExpression("Constraints[69]", "Params.sketch3_width4")
sketch3.setExpression("Constraints[70]", "Params.sketch3_width5")
pocket1 = body.newObject("PartDesign::Pocket", "Pocket")
pocket1.Profile = sketch3
pocket1.setExpression("Length", "Params.pocket1_length")
pocket1.Reversed = True

# Sketch on XY plane
sketch4 = body.newObject("Sketcher::SketchObject", "Sketch003")
sketch4.AttachmentSupport = (doc.getObject("XY_Plane"), [""])
sketch4.MapMode = "FlatFace"
add_polygon(sketch4, [(26, 35), (26, 30), (38, 30), (38, 35)])  # lines 0-3
add_polygon(sketch4, [(26, -30), (26, -35), (38, -35), (38, -30)])  # lines 4-7
sketch4.addConstraint(Sketcher.Constraint("Vertical", 0))
sketch4.addConstraint(Sketcher.Constraint("Horizontal", 1))
sketch4.addConstraint(Sketcher.Constraint("Vertical", 2))
sketch4.addConstraint(Sketcher.Constraint("Horizontal", 3))
sketch4.addConstraint(Sketcher.Constraint("Vertical", 4))
sketch4.addConstraint(Sketcher.Constraint("Horizontal", 5))
sketch4.addConstraint(Sketcher.Constraint("Vertical", 6))
sketch4.addConstraint(Sketcher.Constraint("Horizontal", 7))
sketch4.addConstraint(Sketcher.Constraint("Symmetric", 3, 2, 4, 2, -1))
sketch4.addConstraint(Sketcher.Constraint("Symmetric", 1, 2, 6, 2, -1))
sketch4.addConstraint(Sketcher.Constraint("DistanceX", 1, 1, 1, 2, 12.0))
sketch4.addConstraint(Sketcher.Constraint("DistanceY", 0, 2, 0, 1, 5.0))
sketch4.addConstraint(Sketcher.Constraint("DistanceY", -1, 1, 0, 2, 30.0))
sketch4.addConstraint(Sketcher.Constraint("DistanceX", -1, 1, 0, 2, 25.5))
sketch4.setExpression("Constraints[18]", "Params.sketch4_width")
sketch4.setExpression("Constraints[19]", "Params.sketch4_height")
pad3 = body.newObject("PartDesign::Pad", "Pad002")
pad3.Profile = sketch4
pad3.setExpression("Length", "Params.pad3_length")
body2 = doc.addObject("PartDesign::Body", "Body001")

# Sketch on XY plane
sketch5 = body2.newObject("Sketcher::SketchObject", "Sketch004")
sketch5.AttachmentSupport = (doc.getObject("XY_Plane001"), [""])
sketch5.MapMode = "FlatFace"
add_polygon(sketch5, [(26, 29), (26, -29), (38, -29), (38, 29)])  # lines 0-3
sketch5.addConstraint(Sketcher.Constraint("Vertical", 0))
sketch5.addConstraint(Sketcher.Constraint("Horizontal", 1))
sketch5.addConstraint(Sketcher.Constraint("Vertical", 2))
sketch5.addConstraint(Sketcher.Constraint("Horizontal", 3))
sketch5.addConstraint(Sketcher.Constraint("DistanceX", 1, 1, 1, 2, 12.0))
sketch5.addConstraint(Sketcher.Constraint("DistanceY", 0, 2, 0, 1, 58.0))
sketch5.addConstraint(Sketcher.Constraint("DistanceY", 0, 2, -1, 1, 29.0))
sketch5.addConstraint(Sketcher.Constraint("DistanceX", -1, 1, 0, 2, 25.5))
sketch5.setExpression("Constraints[8]", "Params.sketch5_width")
sketch5.setExpression("Constraints[9]", "Params.sketch5_height")
pad4 = body2.newObject("PartDesign::Pad", "Pad003")
pad4.Profile = sketch5
pad4.setExpression("Length", "Params.pad4_length")
body3 = doc.addObject("PartDesign::Body", "Body002")

# Sketch on XY plane
sketch6 = body3.newObject("Sketcher::SketchObject", "Sketch005")
sketch6.AttachmentSupport = (doc.getObject("XY_Plane002"), [""])
sketch6.MapMode = "FlatFace"
add_polygon(sketch6, [(-90, 36), (-90, -36), (-6, -36), (-6, 36)])  # lines 0-3
sketch6.addConstraint(Sketcher.Constraint("Vertical", 0))
sketch6.addConstraint(Sketcher.Constraint("Horizontal", 1))
sketch6.addConstraint(Sketcher.Constraint("Vertical", 2))
sketch6.addConstraint(Sketcher.Constraint("Horizontal", 3))
sketch6.addConstraint(Sketcher.Constraint("DistanceY", 0, 2, 0, 1, 72.0))
sketch6.addConstraint(Sketcher.Constraint("DistanceY", 0, 2, -1, 1, 36.0))
sketch6.addConstraint(Sketcher.Constraint("DistanceX", 1, 2, -1, 1, 6.5))
sketch6.addConstraint(Sketcher.Constraint("DistanceX", 1, 1, 1, 2, 83.090681))
sketch6.setExpression("Constraints[8]", "Params.sketch6_height")
pad5 = body3.newObject("PartDesign::Pad", "Pad004")
pad5.Profile = sketch6
pad5.setExpression("Length", "Params.pad5_length")
body4 = doc.addObject("PartDesign::Body", "Body003")

# Sketch on XY plane
sketch7 = body4.newObject("Sketcher::SketchObject", "Sketch006")
sketch7.AttachmentSupport = (doc.getObject("XY_Plane003"), [""])
sketch7.MapMode = "FlatFace"
add_polygon(sketch7, [(-97, 44), (-97, -43), (97, -43), (97, 44)])  # lines 0-3
sketch7.addConstraint(Sketcher.Constraint("Vertical", 0))
sketch7.addConstraint(Sketcher.Constraint("Horizontal", 1))
sketch7.addConstraint(Sketcher.Constraint("Vertical", 2))
sketch7.addConstraint(Sketcher.Constraint("Horizontal", 3))
sketch7.addConstraint(Sketcher.Constraint("DistanceX", 1, 1, 1, 2, 193.896383))
sketch7.addConstraint(Sketcher.Constraint("DistanceY", 0, 2, 0, 1, 86.829018))
sketch7.addConstraint(Sketcher.Constraint("DistanceX", -1, 1, 1, 2, 96.784979))
sketch7.addConstraint(Sketcher.Constraint("DistanceY", 0, 2, -1, 1, 42.680055))
pad6 = body4.newObject("PartDesign::Pad", "Pad005")
pad6.Profile = sketch7
pad6.setExpression("Length", "Params.pad6_length")

doc.recompute()
